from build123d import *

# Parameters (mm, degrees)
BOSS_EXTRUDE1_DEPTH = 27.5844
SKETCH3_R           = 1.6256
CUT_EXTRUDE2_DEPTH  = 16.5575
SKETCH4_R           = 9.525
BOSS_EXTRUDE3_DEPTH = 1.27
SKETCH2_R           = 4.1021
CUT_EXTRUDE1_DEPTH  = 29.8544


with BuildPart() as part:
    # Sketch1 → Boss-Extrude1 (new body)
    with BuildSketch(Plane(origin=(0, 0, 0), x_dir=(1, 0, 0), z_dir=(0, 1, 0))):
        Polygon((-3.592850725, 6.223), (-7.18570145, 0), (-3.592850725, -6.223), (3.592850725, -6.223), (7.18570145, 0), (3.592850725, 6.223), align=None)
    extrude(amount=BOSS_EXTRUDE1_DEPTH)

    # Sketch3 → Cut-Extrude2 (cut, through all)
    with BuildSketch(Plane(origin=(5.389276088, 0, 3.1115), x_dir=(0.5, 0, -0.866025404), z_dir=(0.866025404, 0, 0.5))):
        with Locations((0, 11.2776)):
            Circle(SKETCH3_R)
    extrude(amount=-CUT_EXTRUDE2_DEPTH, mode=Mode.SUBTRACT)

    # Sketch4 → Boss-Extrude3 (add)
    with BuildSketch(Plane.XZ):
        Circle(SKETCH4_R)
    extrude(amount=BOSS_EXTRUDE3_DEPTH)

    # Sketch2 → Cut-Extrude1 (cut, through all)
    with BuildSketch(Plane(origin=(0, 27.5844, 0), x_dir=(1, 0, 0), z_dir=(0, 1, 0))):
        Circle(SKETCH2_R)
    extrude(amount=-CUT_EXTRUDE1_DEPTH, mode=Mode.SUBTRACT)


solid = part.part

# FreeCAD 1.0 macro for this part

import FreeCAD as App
import Part
import Sketcher
from FreeCAD import Vector
Q = App.Units.Quantity


def add_polygon(sketch, points):
    """Adds a closed chain of lines whose ends are joined by coincident constraints."""
    first, n = sketch.GeometryCount, len(points)
    for a, b in zip(points, points[1:] + points[:1]):
        sketch.addGeometry(Part.LineSegment(App.Vector(*a, 0), App.Vector(*b, 0)), False)
    for i in range(n):
        sketch.addConstraint(Sketcher.Constraint("Coincident", first + i, 2, first + (i + 1) % n, 1))

doc = App.newDocument("Part")
params = doc.addObject("Spreadsheet::Sheet", "Params")
for row, (alias, value) in enumerate([
    ("pad1_length", "1.086 in"),
    ("sketch2_diameter", "0.128 in"),
    ("sketch3_diameter", "0.75 in"),
    ("pad2_length", "0.05 in"),
    ("sketch4_diameter", "0.323 in"),
], start=1):
    params.set(f"A{row}", alias)
    params.set(f"B{row}", "=" + value)
    params.setAlias(f"B{row}", alias)

body = doc.addObject("PartDesign::Body", "Body")

sketch1 = body.newObject("Sketcher::SketchObject", "Sketch")
sketch1.AttachmentSupport = (doc.getObject("XZ_Plane"), [""])
sketch1.MapMode = "FlatFace"
add_polygon(sketch1, [(-4, -6), (-7, 0), (-4, 6), (4, 6), (7, 0), (4, -6)])
sketch1.addConstraint([
    Sketcher.Constraint("Horizontal", 2),
    Sketcher.Constraint("Horizontal", 5),
    Sketcher.Constraint("Symmetric", 0, 2, 3, 2, -1, 1),
    Sketcher.Constraint("Symmetric", 1, 2, 4, 2, -1, 1),
    Sketcher.Constraint("PointOnObject", 0, 2, -1),
    Sketcher.Constraint("Parallel", 0, 3),
    Sketcher.Constraint("Vertical", 2, 2, 4, 2),
    Sketcher.Constraint("Angle", 0, Q("120 deg")),
    Sketcher.Constraint("DistanceY", 4, 2, 2, 2, Q("0.49 in")),
    Sketcher.Constraint("DistanceX", 2, 1, 2, 2, Q("7.185701 mm")),
])
pad1 = body.newObject("PartDesign::Pad", "Pad")
pad1.Profile = sketch1
pad1.setExpression("Length", "Params.pad1_length")
pad1.Reversed = True

sketch2 = body.newObject("Sketcher::SketchObject", "Sketch001")
sketch2.Placement = App.Placement(Vector(5.389276, 0, 3.1115), App.Rotation(Vector(0.5, 0, -0.866025404), Vector(0, 1, 0), Vector(0.866025404, 0, 0.5), "ZXY"))
sketch2.addGeometry(Part.Circle(Vector(0, 11.3, 0), Vector(0, 0, 1), 1.6), False)
sketch2.addConstraint([
    Sketcher.Constraint("PointOnObject", 0, 3, -2),
    Sketcher.Constraint("Diameter", 0, Q("0.128 in")),
    Sketcher.Constraint("DistanceY", -1, 1, 0, 3, Q("0.444 in")),
])
sketch2.setExpression("Constraints[1]", "Params.sketch2_diameter")
pocket1 = body.newObject("PartDesign::Pocket", "Pocket")
pocket1.Profile = sketch2
pocket1.Type = "ThroughAll"

sketch3 = body.newObject("Sketcher::SketchObject", "Sketch002")
sketch3.AttachmentSupport = (doc.getObject("XZ_Plane"), [""])
sketch3.MapMode = "FlatFace"
sketch3.addGeometry(Part.Circle(Vector(0, 0, 0), Vector(0, 0, 1), 10), False)
sketch3.addConstraint([
    Sketcher.Constraint("Coincident", 0, 3, -1, 1),
    Sketcher.Constraint("Diameter", 0, Q("0.75 in")),
])
sketch3.setExpression("Constraints[1]", "Params.sketch3_diameter")
pad2 = body.newObject("PartDesign::Pad", "Pad001")
pad2.Profile = sketch3
pad2.setExpression("Length", "Params.pad2_length")

sketch4 = body.newObject("Sketcher::SketchObject", "Sketch003")
sketch4.AttachmentSupport = (doc.getObject("XZ_Plane"), [""])
sketch4.MapMode = "FlatFace"
sketch4.AttachmentOffset = App.Placement(Vector(0, 0, -1.086 * 25.4), App.Rotation())
sketch4.addGeometry(Part.Circle(Vector(0, 0, 0), Vector(0, 0, 1), 4.1), False)
sketch4.addConstraint([
    Sketcher.Constraint("Coincident", 0, 3, -1, 1),
    Sketcher.Constraint("Diameter", 0, Q("0.323 in")),
])
sketch4.setExpression("Constraints[1]", "Params.sketch4_diameter")
pocket2 = body.newObject("PartDesign::Pocket", "Pocket001")
pocket2.Profile = sketch4
pocket2.Type = "ThroughAll"
pocket2.Reversed = True

doc.recompute()
